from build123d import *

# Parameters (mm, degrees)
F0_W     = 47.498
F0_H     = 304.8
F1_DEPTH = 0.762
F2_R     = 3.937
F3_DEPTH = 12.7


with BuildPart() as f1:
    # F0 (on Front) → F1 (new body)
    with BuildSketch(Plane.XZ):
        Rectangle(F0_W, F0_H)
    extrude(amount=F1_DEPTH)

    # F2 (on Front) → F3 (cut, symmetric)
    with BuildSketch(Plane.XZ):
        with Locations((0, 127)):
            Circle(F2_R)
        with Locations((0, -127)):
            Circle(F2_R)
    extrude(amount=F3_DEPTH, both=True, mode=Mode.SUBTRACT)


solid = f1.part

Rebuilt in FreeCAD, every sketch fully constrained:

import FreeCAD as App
import Part
import Sketcher
Q = App.Units.Quantity


def add_polygon(sketch, points):
    """Adds a closed chain of lines whose ends are joined by coincident constraints."""
    first, n = sketch.GeometryCount, len(points)
    for a, b in zip(points, points[1:] + points[:1]):
        sketch.addGeometry(Part.LineSegment(App.Vector(*a, 0), App.Vector(*b, 0)), False)
    for i in range(n):
        sketch.addConstraint(Sketcher.Constraint("Coincident", first + i, 2, first + (i + 1) % n, 1))

doc = App.newDocument("Part")
body = doc.addObject("PartDesign::Body", "Body")

sketch1 = doc.addObject("Sketcher::SketchObject", "Sketch")
body.addObject(sketch1)
sketch1.AttachmentSupport = (doc.XZ_Plane, [""])
sketch1.MapMode = "FlatFace"
add_polygon(sketch1, [(-23.749, 152.4), (-23.749, -152.4), (23.749, -152.4), (23.749, 152.4)])
sketch1.addConstraint([
    Sketcher.Constraint("Vertical", 0),
    Sketcher.Constraint("Horizontal", 1),
    Sketcher.Constraint("Vertical", 2),
    Sketcher.Constraint("Horizontal", 3),
    Sketcher.Constraint("Symmetric", 0, 2, 2, 2, -1, 1),
    Sketcher.Constraint("DistanceY", 0, 2, 0, 1, Q("12 in")),
    Sketcher.Constraint("DistanceX", 1, 1, 1, 2, Q("1.87 in")),
])
pad1 = doc.addObject("PartDesign::Pad", "Pad")
body.addObject(pad1)
pad1.Profile = sketch1
pad1.Length = Q("0.03 in")

sketch2 = doc.addObject("Sketcher::SketchObject", "Sketch001")
body.addObject(sketch2)
sketch2.AttachmentSupport = (doc.XZ_Plane, [""])
sketch2.MapMode = "FlatFace"
sketch2.addGeometry([
    Part.Circle(App.Vector(0, 127, 0), App.Vector(0, 0, 1), 3.937),
    Part.Circle(App.Vector(0, -127, 0), App.Vector(0, 0, 1), 3.937),
], False)
sketch2.addConstraint([
    Sketcher.Constraint("Equal", 0, 1),
    Sketcher.Constraint("Symmetric", 0, 3, 1, 3, -1, 1),
    Sketcher.Constraint("PointOnObject", 0, 3, -2),
    Sketcher.Constraint("Diameter", 0, Q("0.31 in")),
    Sketcher.Constraint("DistanceY", -1, 1, 0, 3, Q("5 in")),
])
pocket1 = doc.addObject("PartDesign::Pocket", "Pocket")
body.addObject(pocket1)
pocket1.Profile = sketch2
pocket1.Length = Q("1 in")
pocket1.Midplane = True

doc.recompute()
